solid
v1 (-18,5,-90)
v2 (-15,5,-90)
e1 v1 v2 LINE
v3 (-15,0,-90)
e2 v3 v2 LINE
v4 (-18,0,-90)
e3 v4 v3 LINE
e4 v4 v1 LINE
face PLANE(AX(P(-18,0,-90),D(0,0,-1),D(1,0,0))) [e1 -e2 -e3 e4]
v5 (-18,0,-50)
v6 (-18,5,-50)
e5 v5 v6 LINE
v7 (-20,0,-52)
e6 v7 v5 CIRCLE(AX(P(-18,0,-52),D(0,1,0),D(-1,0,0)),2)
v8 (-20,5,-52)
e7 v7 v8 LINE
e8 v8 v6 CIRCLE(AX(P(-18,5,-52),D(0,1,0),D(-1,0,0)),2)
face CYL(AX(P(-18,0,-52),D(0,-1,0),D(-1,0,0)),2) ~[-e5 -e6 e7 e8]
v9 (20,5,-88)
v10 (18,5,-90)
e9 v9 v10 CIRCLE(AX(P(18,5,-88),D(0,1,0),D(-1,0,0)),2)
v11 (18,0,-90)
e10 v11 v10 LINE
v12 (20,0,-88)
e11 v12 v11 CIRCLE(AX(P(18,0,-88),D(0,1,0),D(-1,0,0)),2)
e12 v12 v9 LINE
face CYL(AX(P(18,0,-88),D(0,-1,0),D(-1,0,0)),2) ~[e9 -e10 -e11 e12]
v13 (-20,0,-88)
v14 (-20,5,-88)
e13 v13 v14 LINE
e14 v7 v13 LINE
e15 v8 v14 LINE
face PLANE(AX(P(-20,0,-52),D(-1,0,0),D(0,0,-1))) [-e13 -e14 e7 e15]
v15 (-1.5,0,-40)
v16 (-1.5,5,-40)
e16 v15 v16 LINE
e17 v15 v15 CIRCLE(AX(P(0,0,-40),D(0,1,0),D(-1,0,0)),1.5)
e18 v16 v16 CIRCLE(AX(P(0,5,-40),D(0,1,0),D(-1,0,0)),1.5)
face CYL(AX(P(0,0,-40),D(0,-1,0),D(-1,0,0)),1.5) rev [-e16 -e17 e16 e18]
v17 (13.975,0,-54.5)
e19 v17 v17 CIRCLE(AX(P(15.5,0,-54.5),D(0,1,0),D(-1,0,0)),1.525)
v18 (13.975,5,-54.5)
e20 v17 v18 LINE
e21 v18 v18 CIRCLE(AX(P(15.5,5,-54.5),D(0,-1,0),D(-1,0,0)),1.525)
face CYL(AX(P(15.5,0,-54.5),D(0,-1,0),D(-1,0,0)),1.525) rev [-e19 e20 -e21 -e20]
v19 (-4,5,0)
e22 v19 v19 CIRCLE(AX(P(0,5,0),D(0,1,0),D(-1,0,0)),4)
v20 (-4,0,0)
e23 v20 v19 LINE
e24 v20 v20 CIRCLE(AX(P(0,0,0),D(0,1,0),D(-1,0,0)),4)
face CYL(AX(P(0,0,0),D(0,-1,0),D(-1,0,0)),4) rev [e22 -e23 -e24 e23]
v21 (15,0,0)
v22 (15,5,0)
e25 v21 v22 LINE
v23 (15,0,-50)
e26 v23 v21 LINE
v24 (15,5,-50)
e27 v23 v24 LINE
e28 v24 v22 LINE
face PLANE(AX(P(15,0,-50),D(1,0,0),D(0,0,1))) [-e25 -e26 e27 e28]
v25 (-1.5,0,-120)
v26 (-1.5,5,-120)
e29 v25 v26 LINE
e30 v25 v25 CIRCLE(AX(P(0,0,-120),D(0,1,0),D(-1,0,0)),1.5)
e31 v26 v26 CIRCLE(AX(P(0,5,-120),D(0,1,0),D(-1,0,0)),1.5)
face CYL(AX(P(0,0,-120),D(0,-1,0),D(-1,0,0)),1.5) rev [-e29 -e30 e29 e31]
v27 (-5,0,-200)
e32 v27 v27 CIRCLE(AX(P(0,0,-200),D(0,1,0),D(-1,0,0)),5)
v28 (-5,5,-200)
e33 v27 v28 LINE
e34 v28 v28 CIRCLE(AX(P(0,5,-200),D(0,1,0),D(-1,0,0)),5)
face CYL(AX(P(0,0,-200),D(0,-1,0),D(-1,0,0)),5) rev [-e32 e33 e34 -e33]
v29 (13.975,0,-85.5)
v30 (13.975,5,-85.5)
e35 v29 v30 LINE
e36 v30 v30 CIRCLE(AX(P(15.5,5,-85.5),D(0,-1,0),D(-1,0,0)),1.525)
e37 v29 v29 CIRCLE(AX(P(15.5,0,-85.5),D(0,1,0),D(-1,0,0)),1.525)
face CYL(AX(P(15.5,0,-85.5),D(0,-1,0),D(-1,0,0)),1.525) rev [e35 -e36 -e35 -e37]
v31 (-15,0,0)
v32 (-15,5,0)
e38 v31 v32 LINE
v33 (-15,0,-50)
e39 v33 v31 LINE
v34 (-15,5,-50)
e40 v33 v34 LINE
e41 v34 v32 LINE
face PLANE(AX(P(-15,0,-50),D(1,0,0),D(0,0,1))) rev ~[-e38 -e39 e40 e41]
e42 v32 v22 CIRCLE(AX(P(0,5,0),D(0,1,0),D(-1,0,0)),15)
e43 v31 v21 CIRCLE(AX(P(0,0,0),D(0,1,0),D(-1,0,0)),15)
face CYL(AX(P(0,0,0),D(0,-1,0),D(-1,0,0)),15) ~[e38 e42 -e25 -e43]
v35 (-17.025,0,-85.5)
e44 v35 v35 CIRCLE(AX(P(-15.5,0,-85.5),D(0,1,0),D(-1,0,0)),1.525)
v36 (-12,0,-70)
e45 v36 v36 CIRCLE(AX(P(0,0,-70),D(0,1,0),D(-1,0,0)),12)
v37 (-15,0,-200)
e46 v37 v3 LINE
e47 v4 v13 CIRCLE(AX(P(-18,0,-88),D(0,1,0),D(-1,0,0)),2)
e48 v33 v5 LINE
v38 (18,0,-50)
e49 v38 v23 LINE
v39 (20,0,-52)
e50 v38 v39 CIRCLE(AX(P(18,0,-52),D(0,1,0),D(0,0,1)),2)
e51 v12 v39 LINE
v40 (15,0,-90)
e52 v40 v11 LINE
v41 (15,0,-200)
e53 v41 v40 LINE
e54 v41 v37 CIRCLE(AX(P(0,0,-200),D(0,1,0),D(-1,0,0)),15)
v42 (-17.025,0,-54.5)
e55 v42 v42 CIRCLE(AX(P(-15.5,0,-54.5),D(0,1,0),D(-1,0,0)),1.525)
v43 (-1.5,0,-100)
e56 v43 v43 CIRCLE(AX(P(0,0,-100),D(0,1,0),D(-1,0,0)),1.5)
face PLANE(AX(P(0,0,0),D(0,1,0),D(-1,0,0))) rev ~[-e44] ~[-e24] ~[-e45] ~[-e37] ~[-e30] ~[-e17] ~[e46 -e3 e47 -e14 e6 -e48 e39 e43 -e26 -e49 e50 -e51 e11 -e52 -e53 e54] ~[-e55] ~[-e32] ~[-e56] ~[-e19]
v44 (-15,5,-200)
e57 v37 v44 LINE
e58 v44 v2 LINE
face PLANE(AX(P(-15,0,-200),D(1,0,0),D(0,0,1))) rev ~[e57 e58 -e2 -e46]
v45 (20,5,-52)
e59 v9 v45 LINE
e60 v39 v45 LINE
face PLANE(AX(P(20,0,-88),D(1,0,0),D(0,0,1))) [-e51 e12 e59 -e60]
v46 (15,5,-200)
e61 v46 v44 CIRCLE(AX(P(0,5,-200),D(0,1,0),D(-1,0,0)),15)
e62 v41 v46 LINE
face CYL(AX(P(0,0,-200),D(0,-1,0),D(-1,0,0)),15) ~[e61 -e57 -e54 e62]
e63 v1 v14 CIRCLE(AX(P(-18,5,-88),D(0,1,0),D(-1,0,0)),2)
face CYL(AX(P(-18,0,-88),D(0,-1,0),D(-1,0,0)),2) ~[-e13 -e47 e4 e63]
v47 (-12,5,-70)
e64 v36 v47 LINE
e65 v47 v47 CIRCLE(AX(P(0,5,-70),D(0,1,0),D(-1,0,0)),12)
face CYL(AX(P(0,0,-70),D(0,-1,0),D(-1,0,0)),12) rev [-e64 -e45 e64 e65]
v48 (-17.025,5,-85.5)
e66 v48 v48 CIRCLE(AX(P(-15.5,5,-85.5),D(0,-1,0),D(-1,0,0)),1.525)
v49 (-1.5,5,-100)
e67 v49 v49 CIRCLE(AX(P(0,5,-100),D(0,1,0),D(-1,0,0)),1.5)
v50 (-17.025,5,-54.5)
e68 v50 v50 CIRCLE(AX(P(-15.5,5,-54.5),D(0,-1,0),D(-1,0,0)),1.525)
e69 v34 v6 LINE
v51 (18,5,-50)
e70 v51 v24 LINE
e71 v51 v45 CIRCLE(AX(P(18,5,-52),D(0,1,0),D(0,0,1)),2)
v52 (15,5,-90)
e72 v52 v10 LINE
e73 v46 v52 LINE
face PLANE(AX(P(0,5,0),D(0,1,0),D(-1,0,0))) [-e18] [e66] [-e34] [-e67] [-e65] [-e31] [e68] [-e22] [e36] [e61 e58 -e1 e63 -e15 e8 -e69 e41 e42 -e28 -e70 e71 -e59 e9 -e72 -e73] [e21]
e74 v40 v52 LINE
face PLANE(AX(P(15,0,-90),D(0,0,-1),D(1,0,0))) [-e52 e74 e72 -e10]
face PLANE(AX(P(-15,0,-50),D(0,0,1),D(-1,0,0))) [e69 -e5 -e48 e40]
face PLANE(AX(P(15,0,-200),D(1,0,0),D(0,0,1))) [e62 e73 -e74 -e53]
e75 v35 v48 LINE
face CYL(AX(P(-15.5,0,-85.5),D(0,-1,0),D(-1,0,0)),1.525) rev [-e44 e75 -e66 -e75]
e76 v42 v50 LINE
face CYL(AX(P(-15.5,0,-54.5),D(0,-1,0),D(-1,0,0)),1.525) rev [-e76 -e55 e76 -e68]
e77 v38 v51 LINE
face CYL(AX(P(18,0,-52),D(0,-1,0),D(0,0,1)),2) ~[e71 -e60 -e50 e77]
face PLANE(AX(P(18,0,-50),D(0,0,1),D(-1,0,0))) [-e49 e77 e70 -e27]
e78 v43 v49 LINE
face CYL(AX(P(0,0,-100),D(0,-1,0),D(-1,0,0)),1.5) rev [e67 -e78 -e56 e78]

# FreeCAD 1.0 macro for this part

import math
import FreeCAD as App
import Part
import Sketcher
from FreeCAD import Vector

doc = App.newDocument("Part")
body = doc.addObject("PartDesign::Body", "Body")

sketch1 = body.newObject("Sketcher::SketchObject", "Sketch")
sketch1.AttachmentSupport = (doc.getObject("XZ_Plane"), [""])
sketch1.MapMode = "FlatFace"
sketch1.addGeometry(Part.ArcOfCircle(Part.Circle(Vector(0, 0, 0), Vector(0, 0, 1), 15), math.radians(0), math.radians(180)), False)
sketch1.addGeometry(Part.LineSegment(Vector(15, 0, 0), Vector(15, -50, 0)), False)
sketch1.addGeometry(Part.LineSegment(Vector(15, -50, 0), Vector(18, -50, 0)), False)
sketch1.addGeometry(Part.ArcOfCircle(Part.Circle(Vector(18, -52, 0), Vector(0, 0, 1), 2), math.radians(0), math.radians(90)), False)
sketch1.addGeometry(Part.LineSegment(Vector(20, -52, 0), Vector(20, -88, 0)), False)
sketch1.addGeometry(Part.ArcOfCircle(Part.Circle(Vector(18, -88, 0), Vector(0, 0, 1), 2), math.radians(-90), math.radians(0)), False)
sketch1.addGeometry(Part.LineSegment(Vector(18, -90, 0), Vector(15, -90, 0)), False)
sketch1.addGeometry(Part.LineSegment(Vector(15, -90, 0), Vector(15, -200, 0)), False)
sketch1.addGeometry(Part.ArcOfCircle(Part.Circle(Vector(0, -200, 0), Vector(0, 0, 1), 15), math.radians(180), math.radians(360)), False)
sketch1.addGeometry(Part.LineSegment(Vector(-15, -200, 0), Vector(-15, -90, 0)), False)
sketch1.addGeometry(Part.LineSegment(Vector(-15, -90, 0), Vector(-18, -90, 0)), False)
sketch1.addGeometry(Part.ArcOfCircle(Part.Circle(Vector(-18, -88, 0), Vector(0, 0, 1), 2), math.radians(180), math.radians(270)), False)
sketch1.addGeometry(Part.LineSegment(Vector(-20, -88, 0), Vector(-20, -52, 0)), False)
sketch1.addGeometry(Part.ArcOfCircle(Part.Circle(Vector(-18, -52, 0), Vector(0, 0, 1), 2), math.radians(90), math.radians(180)), False)
sketch1.addGeometry(Part.LineSegment(Vector(-18, -50, 0), Vector(-15, -50, 0)), False)
sketch1.addGeometry(Part.LineSegment(Vector(-15, -50, 0), Vector(-15, 0, 0)), False)
sketch1.addGeometry(Part.Circle(Vector(0, 0, 0), Vector(0, 0, 1), 4), False)
sketch1.addGeometry(Part.Circle(Vector(0, -40, 0), Vector(0, 0, 1), 1.5), False)
sketch1.addGeometry(Part.Circle(Vector(-15.5, -54.5, 0), Vector(0, 0, 1), 1.5), False)
sketch1.addGeometry(Part.Circle(Vector(-15.5, -85.5, 0), Vector(0, 0, 1), 1.5), False)
sketch1.addGeometry(Part.Circle(Vector(15.5, -85.5, 0), Vector(0, 0, 1), 1.5), False)
sketch1.addGeometry(Part.Circle(Vector(15.5, -54.5, 0), Vector(0, 0, 1), 1.5), False)
sketch1.addGeometry(Part.Circle(Vector(0, -70, 0), Vector(0, 0, 1), 12), False)
sketch1.addGeometry(Part.Circle(Vector(0, -100, 0), Vector(0, 0, 1), 1.5), False)
sketch1.addGeometry(Part.Circle(Vector(0, -120, 0), Vector(0, 0, 1), 1.5), False)
sketch1.addGeometry(Part.Circle(Vector(0, -200, 0), Vector(0, 0, 1), 5), False)
sketch1.addConstraint(Sketcher.Constraint("Tangent", 0, 1, 1, 1))
sketch1.addConstraint(Sketcher.Constraint("Coincident", 1, 2, 2, 1))
sketch1.addConstraint(Sketcher.Constraint("Tangent", 2, 2, 3, 2))
sketch1.addConstraint(Sketcher.Constraint("Tangent", 3, 1, 4, 1))
sketch1.addConstraint(Sketcher.Constraint("Tangent", 4, 2, 5, 2))
sketch1.addConstraint(Sketcher.Constraint("Tangent", 5, 1, 6, 1))
sketch1.addConstraint(Sketcher.Constraint("Coincident", 6, 2, 7, 1))
sketch1.addConstraint(Sketcher.Constraint("Tangent", 7, 2, 8, 2))
sketch1.addConstraint(Sketcher.Constraint("Tangent", 8, 1, 9, 1))
sketch1.addConstraint(Sketcher.Constraint("Coincident", 9, 2, 10, 1))
sketch1.addConstraint(Sketcher.Constraint("Tangent", 10, 2, 11, 2))
sketch1.addConstraint(Sketcher.Constraint("Tangent", 11, 1, 12, 1))
sketch1.addConstraint(Sketcher.Constraint("Tangent", 12, 2, 13, 2))
sketch1.addConstraint(Sketcher.Constraint("Tangent", 13, 1, 14, 1))
sketch1.addConstraint(Sketcher.Constraint("Coincident", 14, 2, 15, 1))
sketch1.addConstraint(Sketcher.Constraint("Tangent", 15, 2, 0, 2))
sketch1.addConstraint(Sketcher.Constraint("Vertical", 1))
sketch1.addConstraint(Sketcher.Constraint("Horizontal", 2))
sketch1.addConstraint(Sketcher.Constraint("Vertical", 4))
sketch1.addConstraint(Sketcher.Constraint("Horizontal", 6))
sketch1.addConstraint(Sketcher.Constraint("Vertical", 7))
sketch1.addConstraint(Sketcher.Constraint("Vertical", 9))
sketch1.addConstraint(Sketcher.Constraint("Horizontal", 10))
sketch1.addConstraint(Sketcher.Constraint("Vertical", 12))
sketch1.addConstraint(Sketcher.Constraint("Horizontal", 14))
sketch1.addConstraint(Sketcher.Constraint("Vertical", 15))
sketch1.addConstraint(Sketcher.Constraint("Coincident", 0, 3, -1, 1))
sketch1.addConstraint(Sketcher.Constraint("Coincident", 16, 3, -1, 1))
sketch1.addConstraint(Sketcher.Constraint("Coincident", 25, 3, 8, 3))
sketch1.addConstraint(Sketcher.Constraint("Equal", 3, 5))
sketch1.addConstraint(Sketcher.Constraint("Equal", 0, 8))
sketch1.addConstraint(Sketcher.Constraint("Equal", 5, 11))
sketch1.addConstraint(Sketcher.Constraint("Equal", 11, 13))
sketch1.addConstraint(Sketcher.Constraint("Equal", 18, 19))
sketch1.addConstraint(Sketcher.Constraint("Equal", 19, 20))
sketch1.addConstraint(Sketcher.Constraint("Equal", 20, 21))
sketch1.addConstraint(Sketcher.Constraint("Equal", 17, 23))
sketch1.addConstraint(Sketcher.Constraint("Equal", 23, 24))
sketch1.addConstraint(Sketcher.Constraint("Symmetric", 5, 3, 11, 3, -2))
sketch1.addConstraint(Sketcher.Constraint("Symmetric", 19, 3, 20, 3, -2))
sketch1.addConstraint(Sketcher.Constraint("Symmetric", 18, 3, 21, 3, -2))
sketch1.addConstraint(Sketcher.Constraint("PointOnObject", 8, 3, -2))
sketch1.addConstraint(Sketcher.Constraint("PointOnObject", 17, 3, -2))
sketch1.addConstraint(Sketcher.Constraint("PointOnObject", 22, 3, -2))
sketch1.addConstraint(Sketcher.Constraint("PointOnObject", 23, 3, -2))
sketch1.addConstraint(Sketcher.Constraint("PointOnObject", 24, 3, -2))
sketch1.addConstraint(Sketcher.Constraint("Horizontal", 3, 3, 13, 3))
sketch1.addConstraint(Sketcher.Constraint("Vertical", 18, 3, 19, 3))
sketch1.addConstraint(Sketcher.Constraint("Diameter", 16, 8.0))
sketch1.addConstraint(Sketcher.Constraint("Diameter", 17, 3.0))
sketch1.addConstraint(Sketcher.Constraint("Diameter", 22, 24.0))
sketch1.addConstraint(Sketcher.Constraint("Diameter", 25, 10.0))
sketch1.addConstraint(Sketcher.Constraint("Radius", 0, 15.0))
sketch1.addConstraint(Sketcher.Constraint("Radius", 3, 2.0))
sketch1.addConstraint(Sketcher.Constraint("Diameter", 18, 3.05))
sketch1.addConstraint(Sketcher.Constraint("DistanceX", 2, 1, 2, 2, 3.0))
sketch1.addConstraint(Sketcher.Constraint("DistanceY", 1, 2, 1, 1, 50.0))
sketch1.addConstraint(Sketcher.Constraint("DistanceY", 8, 3, -1, 1, 200.0))
sketch1.addConstraint(Sketcher.Constraint("DistanceY", 17, 3, -1, 1, 40.0))
sketch1.addConstraint(Sketcher.Constraint("DistanceY", 23, 3, -1, 1, 100.0))
sketch1.addConstraint(Sketcher.Constraint("DistanceY", 19, 3, 18, 3, 31.0))
sketch1.addConstraint(Sketcher.Constraint("DistanceX", 19, 3, 20, 3, 31.0))
sketch1.addConstraint(Sketcher.Constraint("DistanceY", 23, 3, 22, 3, 30.0))
sketch1.addConstraint(Sketcher.Constraint("DistanceY", 24, 3, 23, 3, 20.0))
sketch1.addConstraint(Sketcher.Constraint("DistanceY", 23, 3, 5, 1, 10.0))
sketch1.addConstraint(Sketcher.Constraint("DistanceY", 21, 3, 1, 2, 4.5))
pad1 = body.newObject("PartDesign::Pad", "Pad")
pad1.Profile = sketch1
pad1.Length = 5
pad1.Reversed = True

doc.recompute()
